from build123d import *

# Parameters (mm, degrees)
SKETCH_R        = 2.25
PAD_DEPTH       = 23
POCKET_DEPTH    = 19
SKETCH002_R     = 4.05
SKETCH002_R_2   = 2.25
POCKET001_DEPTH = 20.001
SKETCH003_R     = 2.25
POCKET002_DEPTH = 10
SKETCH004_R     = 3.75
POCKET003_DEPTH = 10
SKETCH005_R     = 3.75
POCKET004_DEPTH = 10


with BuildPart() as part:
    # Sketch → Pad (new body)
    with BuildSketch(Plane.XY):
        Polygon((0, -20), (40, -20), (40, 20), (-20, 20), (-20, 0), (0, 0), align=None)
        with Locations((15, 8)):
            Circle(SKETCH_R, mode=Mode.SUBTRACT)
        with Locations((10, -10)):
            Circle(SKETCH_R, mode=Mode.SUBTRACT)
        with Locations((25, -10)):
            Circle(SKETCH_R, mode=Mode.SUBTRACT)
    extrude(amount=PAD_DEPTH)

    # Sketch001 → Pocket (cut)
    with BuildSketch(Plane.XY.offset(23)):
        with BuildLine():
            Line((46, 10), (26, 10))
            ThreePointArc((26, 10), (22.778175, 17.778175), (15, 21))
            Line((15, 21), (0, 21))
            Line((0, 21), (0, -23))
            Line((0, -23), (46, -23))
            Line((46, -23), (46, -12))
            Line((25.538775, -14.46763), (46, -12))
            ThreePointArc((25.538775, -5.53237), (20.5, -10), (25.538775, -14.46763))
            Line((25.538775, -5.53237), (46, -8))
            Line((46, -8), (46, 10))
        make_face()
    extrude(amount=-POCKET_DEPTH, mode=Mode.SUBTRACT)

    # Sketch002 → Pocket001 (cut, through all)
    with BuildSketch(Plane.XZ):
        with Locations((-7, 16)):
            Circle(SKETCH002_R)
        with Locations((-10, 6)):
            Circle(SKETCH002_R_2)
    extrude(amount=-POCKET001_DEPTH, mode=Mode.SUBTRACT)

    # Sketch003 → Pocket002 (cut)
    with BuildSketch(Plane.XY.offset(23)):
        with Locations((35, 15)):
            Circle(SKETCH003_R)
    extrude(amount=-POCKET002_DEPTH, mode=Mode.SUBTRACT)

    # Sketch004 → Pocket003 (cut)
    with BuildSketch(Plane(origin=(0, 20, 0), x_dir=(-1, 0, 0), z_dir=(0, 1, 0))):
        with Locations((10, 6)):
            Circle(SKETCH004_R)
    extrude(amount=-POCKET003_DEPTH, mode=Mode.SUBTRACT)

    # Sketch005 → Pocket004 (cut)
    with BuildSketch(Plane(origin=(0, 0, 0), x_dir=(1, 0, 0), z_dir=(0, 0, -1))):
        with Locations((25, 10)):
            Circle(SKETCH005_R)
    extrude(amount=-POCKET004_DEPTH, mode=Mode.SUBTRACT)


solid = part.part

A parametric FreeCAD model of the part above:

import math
import FreeCAD as App
import Part
import Sketcher

V = App.Vector
Q = App.Units.Quantity


def add_polygon(sketch, points):
    """Adds a closed chain of lines whose ends are joined by coincident constraints."""
    first, n = sketch.GeometryCount, len(points)
    for a, b in zip(points, points[1:] + points[:1]):
        sketch.addGeometry(Part.LineSegment(App.Vector(*a, 0), App.Vector(*b, 0)), False)
    for i in range(n):
        sketch.addConstraint(Sketcher.Constraint("Coincident", first + i, 2, first + (i + 1) % n, 1))

doc = App.newDocument("Part")
body = doc.addObject("PartDesign::Body", "Body")

sketch1 = doc.addObject("Sketcher::SketchObject", "Sketch")
body.addObject(sketch1)
sketch1.AttachmentSupport = (doc.XY_Plane, [""])
sketch1.MapMode = "FlatFace"
add_polygon(sketch1, [(0, -20), (40, -20), (40, 20), (-20, 20), (-20, 0), (0, 0)])
sketch1.addGeometry(Part.Circle(V(10, -10, 0), V(0, 0, 1), 2.25), False)
sketch1.addGeometry(Part.Circle(V(25, -10, 0), V(0, 0, 1), 2.25), False)
sketch1.addGeometry(Part.Circle(V(15, 8, 0), V(0, 0, 1), 2.25), False)
sketch1.addConstraint(Sketcher.Constraint("Horizontal", 0))
sketch1.addConstraint(Sketcher.Constraint("Vertical", 1))
sketch1.addConstraint(Sketcher.Constraint("Horizontal", 2))
sketch1.addConstraint(Sketcher.Constraint("Vertical", 3))
sketch1.addConstraint(Sketcher.Constraint("Horizontal", 4))
sketch1.addConstraint(Sketcher.Constraint("Vertical", 5))
sketch1.addConstraint(Sketcher.Constraint("Coincident", 4, 2, -1, 1))
sketch1.addConstraint(Sketcher.Constraint("Equal", 6, 7))
sketch1.addConstraint(Sketcher.Constraint("Equal", 7, 8))
sketch1.addConstraint(Sketcher.Constraint("Horizontal", 6, 3, 7, 3))
sketch1.addConstraint(Sketcher.Constraint("Equal", 0, 1))
sketch1.addConstraint(Sketcher.Constraint("Equal", 4, 3))
sketch1.addConstraint(Sketcher.Constraint("Equal", 3, 5))
sketch1.addConstraint(Sketcher.Constraint("Diameter", 6, Q("4.5 mm")))
sketch1.addConstraint(Sketcher.Constraint("DistanceX", 0, 1, 0, 2, Q("40 mm")))
sketch1.addConstraint(Sketcher.Constraint("DistanceX", -1, 1, 6, 3, Q("10 mm")))
sketch1.addConstraint(Sketcher.Constraint("DistanceY", 6, 3, -1, 1, Q("10 mm")))
sketch1.addConstraint(Sketcher.Constraint("DistanceX", -1, 1, 7, 3, Q("25 mm")))
sketch1.addConstraint(Sketcher.Constraint("DistanceX", -1, 1, 8, 3, Q("15 mm")))
sketch1.addConstraint(Sketcher.Constraint("DistanceY", -1, 1, 8, 3, Q("8 mm")))
pad1 = doc.addObject("PartDesign::Pad", "Pad")
body.addObject(pad1)
pad1.Profile = sketch1
pad1.Length = 23

sketch2 = doc.addObject("Sketcher::SketchObject", "Sketch001")
body.addObject(sketch2)
sketch2.AttachmentSupport = (doc.XY_Plane, [""])
sketch2.MapMode = "FlatFace"
sketch2.AttachmentOffset = App.Placement(V(0, 0, 23), App.Rotation())
sketch2.addGeometry(Part.LineSegment(V(46, 10, 0), V(26, 10, 0)), False)
sketch2.addGeometry(Part.ArcOfCircle(Part.Circle(V(15.000001, 10.000001, 0), V(0, 0, 1), 10.999999), math.radians(-0.000007), math.radians(90.000007)), False)
sketch2.addGeometry(Part.LineSegment(V(15, 21, 0), V(0, 21, 0)), False)
sketch2.addGeometry(Part.LineSegment(V(0, 21, 0), V(0, -23, 0)), False)
sketch2.addGeometry(Part.LineSegment(V(0, -23, 0), V(46, -23, 0)), False)
sketch2.addGeometry(Part.LineSegment(V(46, -23, 0), V(46, -12, 0)), False)
sketch2.addGeometry(Part.LineSegment(V(46, -12, 0), V(25.538775, -14.46763, 0)), False)
sketch2.addGeometry(Part.ArcOfCircle(Part.Circle(V(25, -10, 0), V(0, 0, 1), 4.5), math.radians(83.123603), math.radians(276.876397)), False)
sketch2.addGeometry(Part.LineSegment(V(25.538775, -5.53237, 0), V(46, -8, 0)), False)
sketch2.addGeometry(Part.LineSegment(V(46, -8, 0), V(46, 10, 0)), False)
sketch2.addConstraint(Sketcher.Constraint("Coincident", 0, 2, 1, 1))
sketch2.addConstraint(Sketcher.Constraint("Tangent", 1, 2, 2, 1))
sketch2.addConstraint(Sketcher.Constraint("Coincident", 2, 2, 3, 1))
sketch2.addConstraint(Sketcher.Constraint("Coincident", 3, 2, 4, 1))
sketch2.addConstraint(Sketcher.Constraint("Coincident", 4, 2, 5, 1))
sketch2.addConstraint(Sketcher.Constraint("Coincident", 5, 2, 6, 1))
sketch2.addConstraint(Sketcher.Constraint("Coincident", 6, 2, 7, 2))
sketch2.addConstraint(Sketcher.Constraint("Coincident", 7, 1, 8, 1))
sketch2.addConstraint(Sketcher.Constraint("Coincident", 8, 2, 9, 1))
sketch2.addConstraint(Sketcher.Constraint("Coincident", 9, 2, 0, 1))
sketch2.addConstraint(Sketcher.Constraint("Horizontal", 0))
sketch2.addConstraint(Sketcher.Constraint("Horizontal", 2))
sketch2.addConstraint(Sketcher.Constraint("Vertical", 3))
sketch2.addConstraint(Sketcher.Constraint("Horizontal", 4))
sketch2.addConstraint(Sketcher.Constraint("Vertical", 5))
sketch2.addConstraint(Sketcher.Constraint("Vertical", 9))
sketch2.addConstraint(Sketcher.Constraint("PointOnObject", 2, 2, -2))
sketch2.addConstraint(Sketcher.Constraint("Horizontal", 1, 3, 0, 2))
sketch2.addConstraint(Sketcher.Constraint("Vertical", 6, 2, 7, 1))
sketch2.addConstraint(Sketcher.Constraint("Vertical", 5, 2, 8, 2))
sketch2.addConstraint(Sketcher.Constraint("Equal", 6, 8))
sketch2.addConstraint(Sketcher.Constraint("Radius", 1, Q("10.999999 mm")))
sketch2.addConstraint(Sketcher.Constraint("Radius", 7, Q("4.5 mm")))
sketch2.addConstraint(Sketcher.Constraint("DistanceX", 0, 2, 0, 1, Q("20 mm")))
sketch2.addConstraint(Sketcher.Constraint("DistanceX", 2, 2, 2, 1, Q("15 mm")))
sketch2.addConstraint(Sketcher.Constraint("DistanceY", 3, 2, 3, 1, Q("44 mm")))
sketch2.addConstraint(Sketcher.Constraint("DistanceY", 5, 1, 5, 2, Q("11 mm")))
sketch2.addConstraint(Sketcher.Constraint("DistanceY", 9, 1, 9, 2, Q("18 mm")))
sketch2.addConstraint(Sketcher.Constraint("DistanceY", -1, 1, 1, 3, Q("10.000001 mm")))
sketch2.addConstraint(Sketcher.Constraint("DistanceX", -1, 1, 7, 3, Q("25 mm")))
sketch2.addConstraint(Sketcher.Constraint("DistanceY", 6, 2, -1, 1, Q("14.46763 mm")))
pocket1 = doc.addObject("PartDesign::Pocket", "Pocket")
body.addObject(pocket1)
pocket1.Profile = sketch2
pocket1.Length = 19

sketch3 = doc.addObject("Sketcher::SketchObject", "Sketch002")
body.addObject(sketch3)
sketch3.AttachmentSupport = (doc.XZ_Plane, [""])
sketch3.MapMode = "FlatFace"
sketch3.addGeometry(Part.Circle(V(-7, 16, 0), V(0, 0, 1), 4.05), False)
sketch3.addGeometry(Part.Circle(V(-10, 6, 0), V(0, 0, 1), 2.25), False)
sketch3.addConstraint(Sketcher.Constraint("Diameter", 0, Q("8.1 mm")))
sketch3.addConstraint(Sketcher.Constraint("Diameter", 1, Q("4.5 mm")))
sketch3.addConstraint(Sketcher.Constraint("DistanceX", 0, 3, -1, 1, Q("7 mm")))
sketch3.addConstraint(Sketcher.Constraint("DistanceY", -1, 1, 0, 3, Q("16 mm")))
sketch3.addConstraint(Sketcher.Constraint("DistanceX", 1, 3, -1, 1, Q("10 mm")))
sketch3.addConstraint(Sketcher.Constraint("DistanceY", -1, 1, 1, 3, Q("6 mm")))
pocket2 = doc.addObject("PartDesign::Pocket", "Pocket001")
body.addObject(pocket2)
pocket2.Profile = sketch3
pocket2.Type = "ThroughAll"

sketch4 = doc.addObject("Sketcher::SketchObject", "Sketch003")
body.addObject(sketch4)
sketch4.AttachmentSupport = (doc.XY_Plane, [""])
sketch4.MapMode = "FlatFace"
sketch4.AttachmentOffset = App.Placement(V(0, 0, 23), App.Rotation())
sketch4.addGeometry(Part.Circle(V(35, 15, 0), V(0, 0, 1), 2.25), False)
sketch4.addConstraint(Sketcher.Constraint("Diameter", 0, Q("4.5 mm")))
sketch4.addConstraint(Sketcher.Constraint("DistanceX", -1, 1, 0, 3, Q("35 mm")))
sketch4.addConstraint(Sketcher.Constraint("DistanceY", -1, 1, 0, 3, Q("15 mm")))
pocket3 = doc.addObject("PartDesign::Pocket", "Pocket002")
body.addObject(pocket3)
pocket3.Profile = sketch4
pocket3.Length = 10

sketch5 = doc.addObject("Sketcher::SketchObject", "Sketch004")
body.addObject(sketch5)
sketch5.AttachmentSupport = (doc.XZ_Plane, [""])
sketch5.MapMode = "FlatFace"
sketch5.AttachmentOffset = App.Placement(V(0, 0, -20), App.Rotation())
sketch5.addGeometry(Part.Circle(V(-10, 6, 0), V(0, 0, 1), 3.75), False)
sketch5.addConstraint(Sketcher.Constraint("Diameter", 0, Q("7.5 mm")))
sketch5.addConstraint(Sketcher.Constraint("DistanceX", 0, 3, -1, 1, Q("10 mm")))
sketch5.addConstraint(Sketcher.Constraint("DistanceY", -1, 1, 0, 3, Q("6 mm")))
pocket4 = doc.addObject("PartDesign::Pocket", "Pocket003")
body.addObject(pocket4)
pocket4.Profile = sketch5
pocket4.Length = 10
pocket4.Reversed = True

sketch6 = doc.addObject("Sketcher::SketchObject", "Sketch005")
body.addObject(sketch6)
sketch6.AttachmentSupport = (doc.XY_Plane, [""])
sketch6.MapMode = "FlatFace"
sketch6.addGeometry(Part.Circle(V(25, -10, 0), V(0, 0, 1), 3.75), False)
sketch6.addConstraint(Sketcher.Constraint("Diameter", 0, Q("7.5 mm")))
sketch6.addConstraint(Sketcher.Constraint("DistanceX", -1, 1, 0, 3, Q("25 mm")))
sketch6.addConstraint(Sketcher.Constraint("DistanceY", 0, 3, -1, 1, Q("10 mm")))
pocket5 = doc.addObject("PartDesign::Pocket", "Pocket004")
body.addObject(pocket5)
pocket5.Profile = sketch6
pocket5.Length = 10
pocket5.Reversed = True

doc.recompute()
